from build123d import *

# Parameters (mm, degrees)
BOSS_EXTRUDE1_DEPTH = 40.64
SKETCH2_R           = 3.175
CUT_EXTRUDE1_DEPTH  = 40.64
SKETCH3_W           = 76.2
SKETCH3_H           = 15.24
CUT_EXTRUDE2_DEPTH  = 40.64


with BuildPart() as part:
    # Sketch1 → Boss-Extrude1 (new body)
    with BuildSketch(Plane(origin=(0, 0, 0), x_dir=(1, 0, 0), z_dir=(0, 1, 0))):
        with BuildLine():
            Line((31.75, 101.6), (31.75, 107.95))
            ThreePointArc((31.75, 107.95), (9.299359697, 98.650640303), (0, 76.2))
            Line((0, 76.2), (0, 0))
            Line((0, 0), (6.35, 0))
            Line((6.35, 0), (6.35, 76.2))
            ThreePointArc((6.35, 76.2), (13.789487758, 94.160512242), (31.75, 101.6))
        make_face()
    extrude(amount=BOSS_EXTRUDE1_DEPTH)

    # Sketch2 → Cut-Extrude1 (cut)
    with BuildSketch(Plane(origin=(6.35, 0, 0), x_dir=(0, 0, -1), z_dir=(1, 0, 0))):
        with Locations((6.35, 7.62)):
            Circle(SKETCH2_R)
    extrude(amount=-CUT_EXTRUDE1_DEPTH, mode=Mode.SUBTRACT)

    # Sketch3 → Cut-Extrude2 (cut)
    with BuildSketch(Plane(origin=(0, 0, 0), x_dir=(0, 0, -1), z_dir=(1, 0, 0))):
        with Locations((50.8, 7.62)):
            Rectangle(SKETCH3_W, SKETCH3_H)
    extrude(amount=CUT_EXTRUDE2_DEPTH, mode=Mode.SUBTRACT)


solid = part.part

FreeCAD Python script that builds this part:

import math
import FreeCAD as App
import Part
import Sketcher
from FreeCAD import Vector
Q = App.Units.Quantity

doc = App.newDocument("Part")
body = doc.addObject("PartDesign::Body", "Body")

# Sketch on XZ plane
sketch1 = doc.addObject("Sketcher::SketchObject", "Sketch")
body.addObject(sketch1)
sketch1.AttachmentSupport = (doc.XZ_Plane, [""])
sketch1.MapMode = "FlatFace"
sketch1.addGeometry([
    Part.LineSegment(Vector(32, -102, 0), Vector(32, -108, 0)),  # 0
    Part.ArcOfCircle(Part.Circle(Vector(32, -76, 0), Vector(0, 0, 1), 32), math.radians(180), math.radians(270)),  # 1
    Part.LineSegment(Vector(0, -76, 0), Vector(0, 0, 0)),  # 2
    Part.LineSegment(Vector(0, 0, 0), Vector(6, 0, 0)),  # 3
    Part.LineSegment(Vector(6, 0, 0), Vector(6, -76, 0)),  # 4
    Part.ArcOfCircle(Part.Circle(Vector(32, -76, 0), Vector(0, 0, 1), 25), math.radians(180), math.radians(270)),  # 5
], False)
sketch1.addConstraint([
    Sketcher.Constraint("Coincident", 0, 2, 1, 2),
    Sketcher.Constraint("Tangent", 1, 1, 2, 1),
    Sketcher.Constraint("Coincident", 2, 2, 3, 1),
    Sketcher.Constraint("Coincident", 3, 2, 4, 1),
    Sketcher.Constraint("Tangent", 4, 2, 5, 1),
    Sketcher.Constraint("Coincident", 5, 2, 0, 1),
    Sketcher.Constraint("Vertical", 0),
    Sketcher.Constraint("Vertical", 2),
    Sketcher.Constraint("Horizontal", 3),
    Sketcher.Constraint("Vertical", 4),
    Sketcher.Constraint("Coincident", 2, 2, -1, 1),
    Sketcher.Constraint("Coincident", 5, 3, 1, 3),
    Sketcher.Constraint("Vertical", 5, 3, 0, 2),
    Sketcher.Constraint("Radius", 5, Q("1 in")),
    Sketcher.Constraint("DistanceY", 2, 1, 2, 2, Q("3 in")),
    Sketcher.Constraint("Radius", 1, Q("1.25 in")),
])
pad1 = doc.addObject("PartDesign::Pad", "Pad")
body.addObject(pad1)
pad1.Profile = sketch1
pad1.Length = Q("1.6 in")
pad1.Reversed = True

# Sketch on YZ plane
sketch2 = doc.addObject("Sketcher::SketchObject", "Sketch001")
body.addObject(sketch2)
sketch2.AttachmentSupport = (doc.YZ_Plane, [""])
sketch2.MapMode = "FlatFace"
sketch2.AttachmentOffset = App.Placement(Vector(0, 0, 0.25 * 25.4), App.Rotation())
sketch2.addGeometry(Part.Circle(Vector(7.6, -6.3, 0), Vector(0, 0, 1), 3.2), False)
sketch2.addConstraint([
    Sketcher.Constraint("Diameter", 0, Q("0.25 in")),
    Sketcher.Constraint("DistanceX", -1, 1, 0, 3, Q("0.3 in")),
    Sketcher.Constraint("DistanceY", 0, 3, -1, 1, Q("0.25 in")),
])
pocket1 = doc.addObject("PartDesign::Pocket", "Pocket")
body.addObject(pocket1)
pocket1.Profile = sketch2
pocket1.Length = Q("1.6 in")

# Sketch on YZ plane
sketch3 = doc.addObject("Sketcher::SketchObject", "Sketch002")
body.addObject(sketch3)
sketch3.AttachmentSupport = (doc.YZ_Plane, [""])
sketch3.MapMode = "FlatFace"
sketch3.addGeometry([
    Part.LineSegment(Vector(15, -13, 0), Vector(0, -13, 0)),
    Part.LineSegment(Vector(0, -13, 0), Vector(0, -89, 0)),
    Part.LineSegment(Vector(0, -89, 0), Vector(15, -89, 0)),
    Part.LineSegment(Vector(15, -89, 0), Vector(15, -13, 0)),
], False)
sketch3.addConstraint([
    Sketcher.Constraint("Coincident", 0, 2, 1, 1),
    Sketcher.Constraint("Coincident", 1, 2, 2, 1),
    Sketcher.Constraint("Coincident", 2, 2, 3, 1),
    Sketcher.Constraint("Coincident", 3, 2, 0, 1),
    Sketcher.Constraint("Horizontal", 0),
    Sketcher.Constraint("Vertical", 1),
    Sketcher.Constraint("Horizontal", 2),
    Sketcher.Constraint("Vertical", 3),
    Sketcher.Constraint("PointOnObject", 0, 2, -2),
    Sketcher.Constraint("DistanceY", 1, 2, 1, 1, Q("3 in")),
    Sketcher.Constraint("DistanceX", 0, 2, 0, 1, Q("0.6 in")),
    Sketcher.Constraint("DistanceY", 0, 2, -1, 1, Q("0.5 in")),
])
pocket2 = doc.addObject("PartDesign::Pocket", "Pocket001")
body.addObject(pocket2)
pocket2.Profile = sketch3
pocket2.Length = Q("1.6 in")
pocket2.Reversed = True

doc.recompute()
